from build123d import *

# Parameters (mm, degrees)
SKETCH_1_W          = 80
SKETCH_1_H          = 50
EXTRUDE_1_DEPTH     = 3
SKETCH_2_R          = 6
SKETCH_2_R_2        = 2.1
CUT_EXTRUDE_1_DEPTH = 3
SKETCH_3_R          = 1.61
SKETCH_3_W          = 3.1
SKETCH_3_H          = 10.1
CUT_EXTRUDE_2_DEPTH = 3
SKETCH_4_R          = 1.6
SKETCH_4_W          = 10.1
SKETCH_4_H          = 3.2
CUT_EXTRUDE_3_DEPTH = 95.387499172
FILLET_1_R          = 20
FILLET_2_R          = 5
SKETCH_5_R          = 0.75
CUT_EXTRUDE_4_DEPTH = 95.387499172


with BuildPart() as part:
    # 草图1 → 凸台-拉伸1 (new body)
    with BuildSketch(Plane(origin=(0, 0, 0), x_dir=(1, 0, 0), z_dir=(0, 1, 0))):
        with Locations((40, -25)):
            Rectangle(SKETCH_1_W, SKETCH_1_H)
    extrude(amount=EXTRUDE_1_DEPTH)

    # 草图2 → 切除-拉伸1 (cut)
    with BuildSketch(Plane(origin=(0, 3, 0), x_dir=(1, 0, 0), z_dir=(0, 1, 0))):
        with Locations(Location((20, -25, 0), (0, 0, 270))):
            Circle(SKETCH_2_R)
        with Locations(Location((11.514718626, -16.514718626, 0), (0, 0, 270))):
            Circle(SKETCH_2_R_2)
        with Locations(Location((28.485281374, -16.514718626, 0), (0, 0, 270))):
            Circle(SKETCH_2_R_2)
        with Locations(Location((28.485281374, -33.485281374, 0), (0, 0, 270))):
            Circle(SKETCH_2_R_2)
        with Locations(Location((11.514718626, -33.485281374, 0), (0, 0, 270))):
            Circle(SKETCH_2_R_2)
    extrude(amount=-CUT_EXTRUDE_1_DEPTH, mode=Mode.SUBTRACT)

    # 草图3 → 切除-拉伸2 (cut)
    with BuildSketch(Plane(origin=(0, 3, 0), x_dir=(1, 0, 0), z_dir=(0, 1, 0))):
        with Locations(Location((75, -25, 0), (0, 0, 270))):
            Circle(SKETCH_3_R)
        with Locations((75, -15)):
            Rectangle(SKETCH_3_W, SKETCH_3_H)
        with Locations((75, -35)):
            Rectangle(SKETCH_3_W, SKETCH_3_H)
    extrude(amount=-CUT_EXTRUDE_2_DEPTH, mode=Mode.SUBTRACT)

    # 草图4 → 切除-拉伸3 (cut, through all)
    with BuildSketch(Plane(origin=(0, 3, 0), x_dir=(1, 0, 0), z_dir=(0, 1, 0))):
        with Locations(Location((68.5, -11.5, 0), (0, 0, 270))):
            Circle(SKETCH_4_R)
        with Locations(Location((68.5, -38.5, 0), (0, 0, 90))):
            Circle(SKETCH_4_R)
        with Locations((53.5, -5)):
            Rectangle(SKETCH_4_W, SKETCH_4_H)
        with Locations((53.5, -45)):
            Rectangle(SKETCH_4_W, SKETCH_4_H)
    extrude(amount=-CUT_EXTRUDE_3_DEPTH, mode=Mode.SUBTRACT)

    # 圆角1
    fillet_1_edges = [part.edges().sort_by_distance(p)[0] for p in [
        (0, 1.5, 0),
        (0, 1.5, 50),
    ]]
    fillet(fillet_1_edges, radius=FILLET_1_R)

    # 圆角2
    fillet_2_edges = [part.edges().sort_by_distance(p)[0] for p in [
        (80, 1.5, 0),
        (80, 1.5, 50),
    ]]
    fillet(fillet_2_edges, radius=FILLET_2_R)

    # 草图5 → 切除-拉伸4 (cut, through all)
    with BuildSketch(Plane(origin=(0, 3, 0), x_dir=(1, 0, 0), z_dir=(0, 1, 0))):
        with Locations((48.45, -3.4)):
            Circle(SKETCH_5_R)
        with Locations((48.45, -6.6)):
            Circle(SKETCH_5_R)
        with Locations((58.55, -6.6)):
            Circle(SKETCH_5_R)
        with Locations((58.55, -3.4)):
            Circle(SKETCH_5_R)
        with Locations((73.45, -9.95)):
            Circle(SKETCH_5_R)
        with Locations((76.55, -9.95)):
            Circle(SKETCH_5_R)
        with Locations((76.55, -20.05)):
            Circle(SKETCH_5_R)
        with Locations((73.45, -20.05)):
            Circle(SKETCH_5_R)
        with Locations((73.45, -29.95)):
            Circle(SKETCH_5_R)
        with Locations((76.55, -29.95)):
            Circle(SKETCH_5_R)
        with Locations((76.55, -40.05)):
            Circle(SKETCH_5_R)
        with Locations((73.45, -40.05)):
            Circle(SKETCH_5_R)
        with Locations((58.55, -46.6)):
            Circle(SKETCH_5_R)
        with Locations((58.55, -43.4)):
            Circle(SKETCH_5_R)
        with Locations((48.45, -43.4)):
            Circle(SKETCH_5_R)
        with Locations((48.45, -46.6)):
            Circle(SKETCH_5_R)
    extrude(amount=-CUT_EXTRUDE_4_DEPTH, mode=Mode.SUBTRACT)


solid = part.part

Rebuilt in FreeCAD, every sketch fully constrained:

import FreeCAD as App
import Part
import Sketcher
from FreeCAD import Vector
Q = App.Units.Quantity


def edges_at(feature, points):
    """Names of the edges that pass closest to the given points."""
    edges = feature.Shape.Edges
    near = lambda p: min(range(len(edges)), key=lambda i: edges[i].distToShape(Part.Vertex(*p))[0])
    return sorted({f"Edge{near(p) + 1}" for p in points})

doc = App.newDocument("Part")
params = doc.addObject("Spreadsheet::Sheet", "Params")
for row, (alias, value) in enumerate([
    ("sketch1_width", "80 mm"),
    ("sketch1_height", "50 mm"),
    ("pad1_length", "3 mm"),
    ("sketch2_diameter", "12 mm"),
    ("sketch2_diameter2", "4.2 mm"),
    ("pocket1_length", "3 mm"),
    ("sketch3_diameter", "3.22 mm"),
    ("sketch3_width", "3.1 mm"),
    ("sketch3_height", "10.1 mm"),
    ("pocket2_length", "3 mm"),
    ("sketch4_diameter", "3.2 mm"),
    ("sketch4_width", "10.1 mm"),
    ("sketch4_height", "3.2 mm"),
    ("fillet_radius", "20 mm"),
    ("fillet2_radius", "5 mm"),
    ("sketch5_diameter", "1.5 mm"),
], start=1):
    params.set(f"A{row}", alias)
    params.set(f"B{row}", "=" + value)
    params.setAlias(f"B{row}", alias)

body = doc.addObject("PartDesign::Body", "Body")

sketch1 = body.newObject("Sketcher::SketchObject", "Sketch")
sketch1.AttachmentSupport = (doc.getObject("XZ_Plane"), [""])
sketch1.MapMode = "FlatFace"
sketch1.addGeometry([
    Part.LineSegment(Vector(0, 0, 0), Vector(0, 50, 0)),
    Part.LineSegment(Vector(0, 50, 0), Vector(80, 50, 0)),
    Part.LineSegment(Vector(80, 50, 0), Vector(80, 0, 0)),
    Part.LineSegment(Vector(80, 0, 0), Vector(0, 0, 0)),
], False)
sketch1.addConstraint([
    Sketcher.Constraint("Coincident", 0, 2, 1, 1),
    Sketcher.Constraint("Coincident", 1, 2, 2, 1),
    Sketcher.Constraint("Coincident", 2, 2, 3, 1),
    Sketcher.Constraint("Coincident", 3, 2, 0, 1),
    Sketcher.Constraint("Vertical", 0),
    Sketcher.Constraint("Horizontal", 1),
    Sketcher.Constraint("Vertical", 2),
    Sketcher.Constraint("Horizontal", 3),
    Sketcher.Constraint("Coincident", 3, 2, -1, 1),
    Sketcher.Constraint("DistanceX", 1, 1, 1, 2, Q("80 mm")),
    Sketcher.Constraint("DistanceY", 0, 1, 0, 2, Q("50 mm")),
])
sketch1.setExpression("Constraints[9]", "Params.sketch1_width")
sketch1.setExpression("Constraints[10]", "Params.sketch1_height")
pad1 = body.newObject("PartDesign::Pad", "Pad")
pad1.Profile = sketch1
pad1.setExpression("Length", "Params.pad1_length")
pad1.Reversed = True

sketch2 = body.newObject("Sketcher::SketchObject", "Sketch001")
sketch2.AttachmentSupport = (doc.getObject("XZ_Plane"), [""])
sketch2.MapMode = "FlatFace"
sketch2.AttachmentOffset = App.Placement(Vector(0, 0, -3), App.Rotation())
sketch2.addGeometry([
    Part.Circle(Vector(20, 25, 0), Vector(0, 0, 1), 6),
    Part.Circle(Vector(11.5, 16.5, 0), Vector(0, 0, 1), 2.1),
    Part.Circle(Vector(28.5, 16.5, 0), Vector(0, 0, 1), 2.1),
    Part.Circle(Vector(28.5, 33.5, 0), Vector(0, 0, 1), 2.1),
    Part.Circle(Vector(11.5, 33.5, 0), Vector(0, 0, 1), 2.1),
], False)
sketch2.addConstraint([
    Sketcher.Constraint("Equal", 1, 2),
    Sketcher.Constraint("Equal", 2, 3),
    Sketcher.Constraint("Equal", 3, 4),
    Sketcher.Constraint("Horizontal", 1, 3, 2, 3),
    Sketcher.Constraint("Horizontal", 3, 3, 4, 3),
    Sketcher.Constraint("Vertical", 2, 3, 3, 3),
    Sketcher.Constraint("Vertical", 1, 3, 4, 3),
    Sketcher.Constraint("Diameter", 0, Q("12 mm")),
    Sketcher.Constraint("Diameter", 1, Q("4.2 mm")),
    Sketcher.Constraint("DistanceX", -1, 1, 0, 3, Q("20 mm")),
    Sketcher.Constraint("DistanceY", -1, 1, 0, 3, Q("25 mm")),
    Sketcher.Constraint("DistanceX", -1, 1, 1, 3, Q("11.514719 mm")),
    Sketcher.Constraint("DistanceY", -1, 1, 1, 3, Q("16.514719 mm")),
    Sketcher.Constraint("DistanceX", -1, 1, 2, 3, Q("28.485281 mm")),
    Sketcher.Constraint("DistanceY", -1, 1, 3, 3, Q("33.485281 mm")),
])
sketch2.setExpression("Constraints[7]", "Params.sketch2_diameter")
sketch2.setExpression("Constraints[8]", "Params.sketch2_diameter2")
pocket1 = body.newObject("PartDesign::Pocket", "Pocket")
pocket1.Profile = sketch2
pocket1.setExpression("Length", "Params.pocket1_length")
pocket1.Reversed = True

sketch3 = body.newObject("Sketcher::SketchObject", "Sketch002")
sketch3.AttachmentSupport = (doc.getObject("XZ_Plane"), [""])
sketch3.MapMode = "FlatFace"
sketch3.AttachmentOffset = App.Placement(Vector(0, 0, -3), App.Rotation())
sketch3.addGeometry([
    Part.Circle(Vector(75, 25, 0), Vector(0, 0, 1), 1.6),
    Part.LineSegment(Vector(73.5, 9.9, 0), Vector(73.5, 20.1, 0)),
    Part.LineSegment(Vector(73.5, 20.1, 0), Vector(76.5, 20.1, 0)),
    Part.LineSegment(Vector(76.5, 20.1, 0), Vector(76.5, 9.9, 0)),
    Part.LineSegment(Vector(76.5, 9.9, 0), Vector(73.5, 9.9, 0)),
    Part.LineSegment(Vector(73.5, 29.9, 0), Vector(73.5, 40, 0)),
    Part.LineSegment(Vector(73.5, 40, 0), Vector(76.5, 40, 0)),
    Part.LineSegment(Vector(76.5, 40, 0), Vector(76.5, 29.9, 0)),
    Part.LineSegment(Vector(76.5, 29.9, 0), Vector(73.5, 29.9, 0)),
], False)
sketch3.addConstraint([
    Sketcher.Constraint("Coincident", 1, 2, 2, 1),
    Sketcher.Constraint("Coincident", 2, 2, 3, 1),
    Sketcher.Constraint("Coincident", 3, 2, 4, 1),
    Sketcher.Constraint("Coincident", 4, 2, 1, 1),
    Sketcher.Constraint("Coincident", 5, 2, 6, 1),
    Sketcher.Constraint("Coincident", 6, 2, 7, 1),
    Sketcher.Constraint("Coincident", 7, 2, 8, 1),
    Sketcher.Constraint("Coincident", 8, 2, 5, 1),
    Sketcher.Constraint("Vertical", 1),
    Sketcher.Constraint("Horizontal", 2),
    Sketcher.Constraint("Vertical", 3),
    Sketcher.Constraint("Horizontal", 4),
    Sketcher.Constraint("Vertical", 5),
    Sketcher.Constraint("Horizontal", 6),
    Sketcher.Constraint("Vertical", 7),
    Sketcher.Constraint("Horizontal", 8),
    Sketcher.Constraint("Vertical", 4, 2, 5, 2),
    Sketcher.Constraint("Vertical", 3, 2, 6, 2),
    Sketcher.Constraint("Equal", 3, 5),
    Sketcher.Constraint("Diameter", 0, Q("3.22 mm")),
    Sketcher.Constraint("DistanceX", 2, 1, 2, 2, Q("3.1 mm")),
    Sketcher.Constraint("DistanceY", 1, 1, 1, 2, Q("10.1 mm")),
    Sketcher.Constraint("DistanceX", -1, 1, 0, 3, Q("75 mm")),
    Sketcher.Constraint("DistanceY", -1, 1, 0, 3, Q("25 mm")),
    Sketcher.Constraint("DistanceY", 1, 2, 5, 2, Q("20 mm")),
    Sketcher.Constraint("DistanceX", -1, 1, 1, 2, Q("73.45 mm")),
    Sketcher.Constraint("DistanceY", -1, 1, 1, 2, Q("20.05 mm")),
])
sketch3.setExpression("Constraints[19]", "Params.sketch3_diameter")
sketch3.setExpression("Constraints[20]", "Params.sketch3_width")
sketch3.setExpression("Constraints[21]", "Params.sketch3_height")
pocket2 = body.newObject("PartDesign::Pocket", "Pocket001")
pocket2.Profile = sketch3
pocket2.setExpression("Length", "Params.pocket2_length")
pocket2.Reversed = True

sketch4 = body.newObject("Sketcher::SketchObject", "Sketch003")
sketch4.AttachmentSupport = (doc.getObject("XZ_Plane"), [""])
sketch4.MapMode = "FlatFace"
sketch4.AttachmentOffset = App.Placement(Vector(0, 0, -3), App.Rotation())
sketch4.addGeometry([
    Part.Circle(Vector(68.5, 11.5, 0), Vector(0, 0, 1), 1.6),
    Part.Circle(Vector(68.5, 38.5, 0), Vector(0, 0, 1), 1.6),
    Part.LineSegment(Vector(48.5, 3.4, 0), Vector(48.5, 6.6, 0)),
    Part.LineSegment(Vector(48.5, 6.6, 0), Vector(58.5, 6.6, 0)),
    Part.LineSegment(Vector(58.5, 6.6, 0), Vector(58.5, 3.4, 0)),
    Part.LineSegment(Vector(58.5, 3.4, 0), Vector(48.5, 3.4, 0)),
    Part.LineSegment(Vector(48.5, 43.4, 0), Vector(48.5, 46.6, 0)),
    Part.LineSegment(Vector(48.5, 46.6, 0), Vector(58.5, 46.6, 0)),
    Part.LineSegment(Vector(58.5, 46.6, 0), Vector(58.5, 43.4, 0)),
    Part.LineSegment(Vector(58.5, 43.4, 0), Vector(48.5, 43.4, 0)),
], False)
sketch4.addConstraint([
    Sketcher.Constraint("Coincident", 2, 2, 3, 1),
    Sketcher.Constraint("Coincident", 3, 2, 4, 1),
    Sketcher.Constraint("Coincident", 4, 2, 5, 1),
    Sketcher.Constraint("Coincident", 5, 2, 2, 1),
    Sketcher.Constraint("Coincident", 6, 2, 7, 1),
    Sketcher.Constraint("Coincident", 7, 2, 8, 1),
    Sketcher.Constraint("Coincident", 8, 2, 9, 1),
    Sketcher.Constraint("Coincident", 9, 2, 6, 1),
    Sketcher.Constraint("Vertical", 2),
    Sketcher.Constraint("Horizontal", 3),
    Sketcher.Constraint("Vertical", 4),
    Sketcher.Constraint("Horizontal", 5),
    Sketcher.Constraint("Vertical", 6),
    Sketcher.Constraint("Horizontal", 7),
    Sketcher.Constraint("Vertical", 8),
    Sketcher.Constraint("Horizontal", 9),
    Sketcher.Constraint("Equal", 0, 1),
    Sketcher.Constraint("Vertical", 0, 3, 1, 3),
    Sketcher.Constraint("Vertical", 5, 2, 6, 2),
    Sketcher.Constraint("Vertical", 4, 2, 7, 2),
    Sketcher.Constraint("Equal", 4, 6),
    Sketcher.Constraint("Diameter", 0, Q("3.2 mm")),
    Sketcher.Constraint("DistanceX", 3, 1, 3, 2, Q("10.1 mm")),
    Sketcher.Constraint("DistanceY", 2, 1, 2, 2, Q("3.2 mm")),
    Sketcher.Constraint("DistanceY", 0, 3, 1, 3, Q("27 mm")),
    Sketcher.Constraint("DistanceY", 2, 2, 6, 2, Q("40 mm")),
    Sketcher.Constraint("DistanceX", -1, 1, 0, 3, Q("68.5 mm")),
    Sketcher.Constraint("DistanceY", -1, 1, 0, 3, Q("11.5 mm")),
    Sketcher.Constraint("DistanceY", -1, 1, 2, 2, Q("6.6 mm")),
    Sketcher.Constraint("DistanceX", -1, 1, 2, 2, Q("48.45 mm")),
])
sketch4.setExpression("Constraints[21]", "Params.sketch4_diameter")
sketch4.setExpression("Constraints[22]", "Params.sketch4_width")
sketch4.setExpression("Constraints[23]", "Params.sketch4_height")
pocket3 = body.newObject("PartDesign::Pocket", "Pocket002")
pocket3.Profile = sketch4
pocket3.Type = "ThroughAll"
pocket3.Reversed = True
doc.recompute()

fillet = body.newObject("PartDesign::Fillet", "Fillet")
fillet.Base = (pocket3, edges_at(pocket3, [(0, 1.5, 0), (0, 1.5, 50)]))
fillet.setExpression("Radius", "Params.fillet_radius")
doc.recompute()

fillet2 = body.newObject("PartDesign::Fillet", "Fillet001")
fillet2.Base = (fillet, edges_at(fillet, [(80, 1.5, 0), (80, 1.5, 50)]))
fillet2.setExpression("Radius", "Params.fillet2_radius")

sketch5 = body.newObject("Sketcher::SketchObject", "Sketch004")
sketch5.AttachmentSupport = (doc.getObject("XZ_Plane"), [""])
sketch5.MapMode = "FlatFace"
sketch5.AttachmentOffset = App.Placement(Vector(0, 0, -3), App.Rotation())
sketch5.addGeometry([
    Part.Circle(Vector(48.5, 3.4, 0), Vector(0, 0, 1), 0.8),
    Part.Circle(Vector(48.5, 6.6, 0), Vector(0, 0, 1), 0.8),
    Part.Circle(Vector(58.5, 6.6, 0), Vector(0, 0, 1), 0.8),
    Part.Circle(Vector(58.5, 3.4, 0), Vector(0, 0, 1), 0.8),
    Part.Circle(Vector(73.5, 9.9, 0), Vector(0, 0, 1), 0.8),
    Part.Circle(Vector(76.5, 9.9, 0), Vector(0, 0, 1), 0.8),
    Part.Circle(Vector(76.5, 20.1, 0), Vector(0, 0, 1), 0.8),
    Part.Circle(Vector(73.5, 20.1, 0), Vector(0, 0, 1), 0.8),
    Part.Circle(Vector(73.5, 29.9, 0), Vector(0, 0, 1), 0.8),
    Part.Circle(Vector(76.5, 29.9, 0), Vector(0, 0, 1), 0.8),
    Part.Circle(Vector(76.5, 40, 0), Vector(0, 0, 1), 0.8),
    Part.Circle(Vector(73.5, 40, 0), Vector(0, 0, 1), 0.8),
    Part.Circle(Vector(58.5, 46.6, 0), Vector(0, 0, 1), 0.8),
    Part.Circle(Vector(58.5, 43.4, 0), Vector(0, 0, 1), 0.8),
    Part.Circle(Vector(48.5, 43.4, 0), Vector(0, 0, 1), 0.8),
    Part.Circle(Vector(48.5, 46.6, 0), Vector(0, 0, 1), 0.8),
], False)
sketch5.addConstraint([
    Sketcher.Constraint("Equal", 0, 1),
    Sketcher.Constraint("Equal", 1, 2),
    Sketcher.Constraint("Equal", 2, 3),
    Sketcher.Constraint("Equal", 3, 4),
    Sketcher.Constraint("Equal", 4, 5),
    Sketcher.Constraint("Equal", 5, 6),
    Sketcher.Constraint("Equal", 6, 7),
    Sketcher.Constraint("Equal", 7, 8),
    Sketcher.Constraint("Equal", 8, 9),
    Sketcher.Constraint("Equal", 9, 10),
    Sketcher.Constraint("Equal", 10, 11),
    Sketcher.Constraint("Equal", 11, 12),
    Sketcher.Constraint("Equal", 12, 13),
    Sketcher.Constraint("Equal", 13, 14),
    Sketcher.Constraint("Equal", 14, 15),
    Sketcher.Constraint("Horizontal", 1, 3, 2, 3),
    Sketcher.Constraint("Horizontal", 0, 3, 3, 3),
    Sketcher.Constraint("Horizontal", 4, 3, 5, 3),
    Sketcher.Constraint("Horizontal", 6, 3, 7, 3),
    Sketcher.Constraint("Horizontal", 8, 3, 9, 3),
    Sketcher.Constraint("Horizontal", 10, 3, 11, 3),
    Sketcher.Constraint("Horizontal", 13, 3, 14, 3),
    Sketcher.Constraint("Horizontal", 12, 3, 15, 3),
    Sketcher.Constraint("Vertical", 0, 3, 1, 3),
    Sketcher.Constraint("Vertical", 2, 3, 3, 3),
    Sketcher.Constraint("Vertical", 5, 3, 6, 3),
    Sketcher.Constraint("Vertical", 4, 3, 7, 3),
    Sketcher.Constraint("Vertical", 7, 3, 8, 3),
    Sketcher.Constraint("Vertical", 6, 3, 9, 3),
    Sketcher.Constraint("Vertical", 9, 3, 10, 3),
    Sketcher.Constraint("Vertical", 8, 3, 11, 3),
    Sketcher.Constraint("Vertical", 3, 3, 12, 3),
    Sketcher.Constraint("Vertical", 12, 3, 13, 3),
    Sketcher.Constraint("Vertical", 1, 3, 14, 3),
    Sketcher.Constraint("Vertical", 14, 3, 15, 3),
    Sketcher.Constraint("Diameter", 0, Q("1.5 mm")),
    Sketcher.Constraint("DistanceX", 1, 3, 4, 3, Q("25 mm")),
    Sketcher.Constraint("DistanceX", 2, 3, 5, 3, Q("18 mm")),
    Sketcher.Constraint("DistanceY", 4, 3, 8, 3, Q("20 mm")),
    Sketcher.Constraint("DistanceY", 6, 3, 10, 3, Q("20 mm")),
    Sketcher.Constraint("DistanceY", -1, 1, 0, 3, Q("3.4 mm")),
    Sketcher.Constraint("DistanceY", -1, 1, 1, 3, Q("6.6 mm")),
    Sketcher.Constraint("DistanceY", -1, 1, 12, 3, Q("46.6 mm")),
    Sketcher.Constraint("DistanceY", -1, 1, 13, 3, Q("43.4 mm")),
    Sketcher.Constraint("DistanceX", 1, 3, 2, 3, Q("10.1 mm")),
    Sketcher.Constraint("DistanceY", 5, 3, 6, 3, Q("10.1 mm")),
    Sketcher.Constraint("DistanceX", -1, 1, 0, 3, Q("48.45 mm")),
    Sketcher.Constraint("DistanceY", -1, 1, 4, 3, Q("9.95 mm")),
])
sketch5.setExpression("Constraints[35]", "Params.sketch5_diameter")
pocket4 = body.newObject("PartDesign::Pocket", "Pocket003")
pocket4.Profile = sketch5
pocket4.Type = "ThroughAll"
pocket4.Reversed = True

doc.recompute()
